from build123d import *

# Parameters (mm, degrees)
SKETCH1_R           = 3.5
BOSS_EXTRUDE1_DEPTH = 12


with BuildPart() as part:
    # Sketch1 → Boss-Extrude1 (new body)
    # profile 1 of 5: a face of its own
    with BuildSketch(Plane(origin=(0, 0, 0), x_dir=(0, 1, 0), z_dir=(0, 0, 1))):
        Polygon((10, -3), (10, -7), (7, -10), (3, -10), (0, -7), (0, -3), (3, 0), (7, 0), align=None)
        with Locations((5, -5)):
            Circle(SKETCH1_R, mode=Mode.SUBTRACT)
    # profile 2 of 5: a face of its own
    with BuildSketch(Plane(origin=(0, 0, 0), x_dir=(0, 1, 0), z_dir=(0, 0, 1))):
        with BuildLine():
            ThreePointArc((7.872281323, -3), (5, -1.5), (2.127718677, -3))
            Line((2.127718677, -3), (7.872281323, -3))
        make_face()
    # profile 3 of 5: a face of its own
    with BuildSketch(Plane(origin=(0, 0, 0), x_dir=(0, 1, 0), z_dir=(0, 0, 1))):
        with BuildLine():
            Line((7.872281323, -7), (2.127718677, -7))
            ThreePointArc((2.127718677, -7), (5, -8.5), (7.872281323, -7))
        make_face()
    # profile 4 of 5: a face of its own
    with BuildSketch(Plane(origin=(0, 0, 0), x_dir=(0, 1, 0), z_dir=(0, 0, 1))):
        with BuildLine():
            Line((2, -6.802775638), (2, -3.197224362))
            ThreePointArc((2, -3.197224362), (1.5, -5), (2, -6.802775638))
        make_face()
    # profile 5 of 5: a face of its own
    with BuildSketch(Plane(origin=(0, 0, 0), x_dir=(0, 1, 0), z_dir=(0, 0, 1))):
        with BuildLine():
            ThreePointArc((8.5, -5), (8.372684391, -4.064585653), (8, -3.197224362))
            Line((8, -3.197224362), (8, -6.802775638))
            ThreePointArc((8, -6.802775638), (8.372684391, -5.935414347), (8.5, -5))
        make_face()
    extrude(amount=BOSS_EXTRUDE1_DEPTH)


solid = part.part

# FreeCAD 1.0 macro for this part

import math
import FreeCAD as App
import Part
import Sketcher
Q = App.Units.Quantity


def add_polygon(sketch, points):
    """Adds a closed chain of lines whose ends are joined by coincident constraints."""
    first, n = sketch.GeometryCount, len(points)
    for a, b in zip(points, points[1:] + points[:1]):
        sketch.addGeometry(Part.LineSegment(App.Vector(*a, 0), App.Vector(*b, 0)), False)
    for i in range(n):
        sketch.addConstraint(Sketcher.Constraint("Coincident", first + i, 2, first + (i + 1) % n, 1))

doc = App.newDocument("Part")
params = doc.addObject("Spreadsheet::Sheet", "Params")
for row, (alias, value) in enumerate([
    ("sketch1_radius", "3.5 mm"),
    ("sketch1_width", "4 mm"),
    ("pad1_length", "12 mm"),
], start=1):
    params.set(f"A{row}", alias)
    params.set(f"B{row}", "=" + value)
    params.setAlias(f"B{row}", alias)

body = doc.addObject("PartDesign::Body", "Body")

# Sketch on XY plane
sketch1 = doc.addObject("Sketcher::SketchObject", "Sketch")
body.addObject(sketch1)
sketch1.AttachmentSupport = (doc.XY_Plane, [""])
sketch1.MapMode = "FlatFace"
add_polygon(sketch1, [(7, 10), (3, 10), (0, 7), (0, 3), (3, 0), (7, 0), (10, 3), (10, 7)])  # lines 0-7
sketch1.addGeometry(Part.ArcOfCircle(Part.Circle(App.Vector(5, 5, 0), App.Vector(0, 0, 1), 3.5), math.radians(121), math.radians(124.85)), False)  # 8
sketch1.addGeometry(Part.LineSegment(App.Vector(3.2, 8, 0), App.Vector(6.8, 8, 0)), False)  # 9
sketch1.addGeometry(Part.ArcOfCircle(Part.Circle(App.Vector(5, 5, 0), App.Vector(0, 0, 1), 3.5), math.radians(55.15), math.radians(59)), False)  # 10
sketch1.addGeometry(Part.LineSegment(App.Vector(7, 7.87, 0), App.Vector(7, 2.13, 0)), False)  # 11
sketch1.addGeometry(Part.ArcOfCircle(Part.Circle(App.Vector(5, 5, 0), App.Vector(0, 0, 1), 3.5), math.radians(-59), math.radians(-55.15)), False)  # 12
sketch1.addGeometry(Part.LineSegment(App.Vector(6.8, 2, 0), App.Vector(3.2, 2, 0)), False)  # 13
sketch1.addGeometry(Part.ArcOfCircle(Part.Circle(App.Vector(5, 5, 0), App.Vector(0, 0, 1), 3.5), math.radians(-124.85), math.radians(-121)), False)  # 14
sketch1.addGeometry(Part.LineSegment(App.Vector(3, 2.13, 0), App.Vector(3, 7.87, 0)), False)  # 15
sketch1.addConstraint(Sketcher.Constraint("Coincident", 8, 1, 9, 1))
sketch1.addConstraint(Sketcher.Constraint("Coincident", 9, 2, 10, 2))
sketch1.addConstraint(Sketcher.Constraint("Coincident", 10, 1, 11, 1))
sketch1.addConstraint(Sketcher.Constraint("Coincident", 11, 2, 12, 2))
sketch1.addConstraint(Sketcher.Constraint("Coincident", 12, 1, 13, 1))
sketch1.addConstraint(Sketcher.Constraint("Coincident", 13, 2, 14, 2))
sketch1.addConstraint(Sketcher.Constraint("Coincident", 14, 1, 15, 1))
sketch1.addConstraint(Sketcher.Constraint("Coincident", 15, 2, 8, 2))
sketch1.addConstraint(Sketcher.Constraint("Horizontal", 0))
sketch1.addConstraint(Sketcher.Constraint("Vertical", 2))
sketch1.addConstraint(Sketcher.Constraint("Horizontal", 4))
sketch1.addConstraint(Sketcher.Constraint("Vertical", 6))
sketch1.addConstraint(Sketcher.Constraint("Horizontal", 9))
sketch1.addConstraint(Sketcher.Constraint("Vertical", 11))
sketch1.addConstraint(Sketcher.Constraint("Horizontal", 13))
sketch1.addConstraint(Sketcher.Constraint("Vertical", 15))
sketch1.addConstraint(Sketcher.Constraint("Coincident", 10, 3, 8, 3))
sketch1.addConstraint(Sketcher.Constraint("Coincident", 12, 3, 8, 3))
sketch1.addConstraint(Sketcher.Constraint("Coincident", 14, 3, 8, 3))
sketch1.addConstraint(Sketcher.Constraint("Equal", 8, 10))
sketch1.addConstraint(Sketcher.Constraint("Equal", 10, 12))
sketch1.addConstraint(Sketcher.Constraint("Equal", 12, 14))
sketch1.addConstraint(Sketcher.Constraint("PointOnObject", 1, 2, -2))
sketch1.addConstraint(Sketcher.Constraint("PointOnObject", 3, 2, -1))
sketch1.addConstraint(Sketcher.Constraint("Perpendicular", 1, 3))
sketch1.addConstraint(Sketcher.Constraint("Perpendicular", 3, 5))
sketch1.addConstraint(Sketcher.Constraint("Perpendicular", 5, 7))
sketch1.addConstraint(Sketcher.Constraint("Horizontal", 2, 2, 5, 2))
sketch1.addConstraint(Sketcher.Constraint("Horizontal", 1, 2, 6, 2))
sketch1.addConstraint(Sketcher.Constraint("Horizontal", 11, 2, 14, 1))
sketch1.addConstraint(Sketcher.Constraint("Vertical", 0, 2, 3, 2))
sketch1.addConstraint(Sketcher.Constraint("Vertical", 4, 2, 7, 2))
sketch1.addConstraint(Sketcher.Constraint("Vertical", 7, 2, 10, 1))
sketch1.addConstraint(Sketcher.Constraint("Vertical", 9, 2, 12, 1))
sketch1.addConstraint(Sketcher.Constraint("Vertical", 3, 2, 14, 1))
sketch1.addConstraint(Sketcher.Constraint("Equal", 4, 2))
sketch1.addConstraint(Sketcher.Constraint("Radius", 8, Q("3.5 mm")))
sketch1.addConstraint(Sketcher.Constraint("DistanceX", 0, 2, 0, 1, Q("4 mm")))
sketch1.addConstraint(Sketcher.Constraint("DistanceX", -1, 1, 8, 3, Q("5 mm")))
sketch1.addConstraint(Sketcher.Constraint("DistanceY", -1, 1, 8, 3, Q("5 mm")))
sketch1.addConstraint(Sketcher.Constraint("DistanceY", -1, 1, 8, 1, Q("8 mm")))
sketch1.setExpression("Constraints[44]", "Params.sketch1_radius")
sketch1.setExpression("Constraints[45]", "Params.sketch1_width")
pad1 = doc.addObject("PartDesign::Pad", "Pad")
body.addObject(pad1)
pad1.Profile = sketch1
pad1.setExpression("Length", "Params.pad1_length")

doc.recompute()
